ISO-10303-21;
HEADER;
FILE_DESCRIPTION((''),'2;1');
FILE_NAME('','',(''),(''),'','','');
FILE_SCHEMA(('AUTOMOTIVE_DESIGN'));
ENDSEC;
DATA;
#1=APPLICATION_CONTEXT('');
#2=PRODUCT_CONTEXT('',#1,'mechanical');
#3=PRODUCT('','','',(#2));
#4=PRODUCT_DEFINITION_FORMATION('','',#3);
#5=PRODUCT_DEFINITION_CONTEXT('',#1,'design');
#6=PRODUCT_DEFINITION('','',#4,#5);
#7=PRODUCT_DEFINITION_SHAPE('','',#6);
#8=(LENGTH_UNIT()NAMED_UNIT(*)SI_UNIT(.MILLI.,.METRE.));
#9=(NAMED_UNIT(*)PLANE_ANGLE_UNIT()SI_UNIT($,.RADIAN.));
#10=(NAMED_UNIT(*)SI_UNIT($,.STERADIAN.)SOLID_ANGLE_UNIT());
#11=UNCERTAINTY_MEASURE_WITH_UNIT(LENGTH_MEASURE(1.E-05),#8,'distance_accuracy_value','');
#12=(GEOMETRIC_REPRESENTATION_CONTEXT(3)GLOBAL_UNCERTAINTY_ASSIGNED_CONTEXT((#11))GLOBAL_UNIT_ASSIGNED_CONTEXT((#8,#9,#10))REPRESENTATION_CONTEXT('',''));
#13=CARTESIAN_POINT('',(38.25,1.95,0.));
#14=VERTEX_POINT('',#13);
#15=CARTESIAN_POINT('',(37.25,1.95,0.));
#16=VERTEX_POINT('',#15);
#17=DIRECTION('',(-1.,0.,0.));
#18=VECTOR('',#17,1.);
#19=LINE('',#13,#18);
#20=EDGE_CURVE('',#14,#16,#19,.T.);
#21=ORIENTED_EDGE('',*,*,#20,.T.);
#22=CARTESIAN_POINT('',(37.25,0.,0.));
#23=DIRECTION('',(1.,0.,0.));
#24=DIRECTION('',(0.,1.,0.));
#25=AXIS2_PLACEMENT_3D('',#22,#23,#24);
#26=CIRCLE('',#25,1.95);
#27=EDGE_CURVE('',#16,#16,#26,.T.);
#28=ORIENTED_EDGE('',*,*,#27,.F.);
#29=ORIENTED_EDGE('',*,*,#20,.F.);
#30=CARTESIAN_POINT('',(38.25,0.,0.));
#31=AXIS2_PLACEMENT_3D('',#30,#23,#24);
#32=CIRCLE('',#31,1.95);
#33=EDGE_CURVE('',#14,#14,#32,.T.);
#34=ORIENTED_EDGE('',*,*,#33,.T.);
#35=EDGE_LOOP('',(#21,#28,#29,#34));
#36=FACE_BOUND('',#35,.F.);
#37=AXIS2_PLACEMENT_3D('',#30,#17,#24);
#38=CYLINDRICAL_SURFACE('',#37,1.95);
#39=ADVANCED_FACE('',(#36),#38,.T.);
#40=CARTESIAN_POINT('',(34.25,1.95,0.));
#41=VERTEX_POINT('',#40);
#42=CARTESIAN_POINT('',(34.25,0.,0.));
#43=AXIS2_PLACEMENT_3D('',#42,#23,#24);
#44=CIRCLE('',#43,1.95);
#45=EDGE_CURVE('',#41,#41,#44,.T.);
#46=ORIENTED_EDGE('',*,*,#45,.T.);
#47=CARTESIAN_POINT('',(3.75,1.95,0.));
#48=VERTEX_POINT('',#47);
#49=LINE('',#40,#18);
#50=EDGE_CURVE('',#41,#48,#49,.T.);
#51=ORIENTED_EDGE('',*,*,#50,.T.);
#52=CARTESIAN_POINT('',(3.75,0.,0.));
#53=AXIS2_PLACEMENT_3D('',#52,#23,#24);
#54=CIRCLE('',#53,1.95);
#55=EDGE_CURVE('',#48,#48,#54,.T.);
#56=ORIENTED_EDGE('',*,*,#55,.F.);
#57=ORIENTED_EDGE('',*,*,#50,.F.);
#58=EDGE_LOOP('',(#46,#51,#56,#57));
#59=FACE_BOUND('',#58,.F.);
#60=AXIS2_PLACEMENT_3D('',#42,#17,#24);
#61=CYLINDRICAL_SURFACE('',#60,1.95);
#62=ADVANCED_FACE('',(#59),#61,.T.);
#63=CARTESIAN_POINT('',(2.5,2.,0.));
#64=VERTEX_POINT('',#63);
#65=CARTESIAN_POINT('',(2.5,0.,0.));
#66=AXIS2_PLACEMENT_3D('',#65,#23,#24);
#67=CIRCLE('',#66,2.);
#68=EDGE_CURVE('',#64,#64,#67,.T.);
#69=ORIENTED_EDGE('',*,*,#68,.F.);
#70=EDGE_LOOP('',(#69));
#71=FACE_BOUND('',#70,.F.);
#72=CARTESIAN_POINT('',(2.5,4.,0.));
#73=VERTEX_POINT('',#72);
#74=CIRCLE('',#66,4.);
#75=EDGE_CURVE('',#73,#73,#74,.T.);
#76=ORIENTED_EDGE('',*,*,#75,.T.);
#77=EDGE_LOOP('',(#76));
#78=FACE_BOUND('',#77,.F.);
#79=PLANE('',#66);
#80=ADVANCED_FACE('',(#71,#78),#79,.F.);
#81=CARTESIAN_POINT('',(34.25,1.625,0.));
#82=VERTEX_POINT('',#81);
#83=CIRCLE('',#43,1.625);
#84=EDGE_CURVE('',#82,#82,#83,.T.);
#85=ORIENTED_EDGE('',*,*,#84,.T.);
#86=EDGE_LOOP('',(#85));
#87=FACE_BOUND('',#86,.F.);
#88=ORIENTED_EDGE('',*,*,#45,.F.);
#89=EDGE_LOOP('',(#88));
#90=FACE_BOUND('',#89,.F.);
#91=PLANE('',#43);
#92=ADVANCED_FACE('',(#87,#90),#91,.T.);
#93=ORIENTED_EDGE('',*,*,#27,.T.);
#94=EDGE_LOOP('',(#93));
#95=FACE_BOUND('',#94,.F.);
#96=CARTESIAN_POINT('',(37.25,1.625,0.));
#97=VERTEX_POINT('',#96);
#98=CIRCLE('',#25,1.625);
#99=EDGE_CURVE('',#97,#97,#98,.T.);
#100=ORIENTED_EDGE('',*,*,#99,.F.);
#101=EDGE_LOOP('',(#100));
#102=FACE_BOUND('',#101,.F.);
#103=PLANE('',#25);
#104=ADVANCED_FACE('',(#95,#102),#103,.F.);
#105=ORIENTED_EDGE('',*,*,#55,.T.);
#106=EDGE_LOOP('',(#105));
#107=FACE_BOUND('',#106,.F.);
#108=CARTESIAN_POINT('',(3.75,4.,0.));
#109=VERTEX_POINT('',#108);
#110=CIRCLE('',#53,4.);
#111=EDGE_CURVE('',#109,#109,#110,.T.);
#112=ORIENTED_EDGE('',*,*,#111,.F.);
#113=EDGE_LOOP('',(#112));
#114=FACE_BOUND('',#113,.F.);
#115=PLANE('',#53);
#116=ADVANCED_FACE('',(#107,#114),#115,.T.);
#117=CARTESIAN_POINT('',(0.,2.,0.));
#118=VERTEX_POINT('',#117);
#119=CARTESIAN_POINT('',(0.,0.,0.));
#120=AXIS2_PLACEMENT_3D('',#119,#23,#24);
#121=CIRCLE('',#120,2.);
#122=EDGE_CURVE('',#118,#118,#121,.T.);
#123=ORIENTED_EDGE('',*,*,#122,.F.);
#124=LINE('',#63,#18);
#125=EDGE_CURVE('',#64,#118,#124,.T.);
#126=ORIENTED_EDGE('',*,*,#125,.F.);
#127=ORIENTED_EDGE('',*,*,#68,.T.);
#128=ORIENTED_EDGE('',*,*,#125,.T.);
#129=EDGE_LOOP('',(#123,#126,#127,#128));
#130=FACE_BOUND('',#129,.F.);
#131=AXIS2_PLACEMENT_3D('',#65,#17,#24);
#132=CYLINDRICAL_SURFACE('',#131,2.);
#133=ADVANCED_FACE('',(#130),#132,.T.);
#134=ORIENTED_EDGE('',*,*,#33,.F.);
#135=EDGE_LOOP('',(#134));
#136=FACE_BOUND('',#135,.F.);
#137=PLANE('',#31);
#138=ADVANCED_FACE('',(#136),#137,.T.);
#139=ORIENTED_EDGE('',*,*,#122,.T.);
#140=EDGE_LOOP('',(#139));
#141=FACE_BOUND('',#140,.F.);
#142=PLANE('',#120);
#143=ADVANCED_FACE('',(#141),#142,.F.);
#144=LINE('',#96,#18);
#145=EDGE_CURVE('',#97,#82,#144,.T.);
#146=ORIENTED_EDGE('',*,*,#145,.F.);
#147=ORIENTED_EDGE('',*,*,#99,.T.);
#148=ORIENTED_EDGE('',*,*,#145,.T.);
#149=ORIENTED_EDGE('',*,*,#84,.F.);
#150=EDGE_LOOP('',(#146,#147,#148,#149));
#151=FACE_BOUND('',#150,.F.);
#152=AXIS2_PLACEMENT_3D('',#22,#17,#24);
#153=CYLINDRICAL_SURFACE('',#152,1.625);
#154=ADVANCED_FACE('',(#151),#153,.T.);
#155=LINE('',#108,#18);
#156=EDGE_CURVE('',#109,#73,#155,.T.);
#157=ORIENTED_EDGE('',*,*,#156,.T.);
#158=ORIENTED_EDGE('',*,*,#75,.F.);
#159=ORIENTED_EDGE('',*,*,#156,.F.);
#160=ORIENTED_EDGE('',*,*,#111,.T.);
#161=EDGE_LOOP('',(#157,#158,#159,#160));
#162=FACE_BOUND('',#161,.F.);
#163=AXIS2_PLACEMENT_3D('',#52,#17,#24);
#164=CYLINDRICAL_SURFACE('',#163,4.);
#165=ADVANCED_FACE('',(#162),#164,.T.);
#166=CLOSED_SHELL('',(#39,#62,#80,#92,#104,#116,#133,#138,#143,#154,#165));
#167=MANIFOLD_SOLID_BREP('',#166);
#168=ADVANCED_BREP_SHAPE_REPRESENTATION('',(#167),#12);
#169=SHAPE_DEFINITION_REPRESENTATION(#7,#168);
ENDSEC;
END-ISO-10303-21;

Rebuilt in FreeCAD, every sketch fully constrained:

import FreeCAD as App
import Part
import Sketcher

doc = App.newDocument("Part")
body = doc.addObject("PartDesign::Body", "Body")

# Sketch on XY plane
sketch1 = doc.addObject("Sketcher::SketchObject", "Sketch")
body.addObject(sketch1)
sketch1.AttachmentSupport = (doc.XY_Plane, [""])
sketch1.MapMode = "FlatFace"
sketch1.addGeometry(Part.LineSegment(App.Vector(0, 2, 0), App.Vector(0, 0, 0)), False)
sketch1.addGeometry(Part.LineSegment(App.Vector(0, 0, 0), App.Vector(38.25, 0, 0)), False)
sketch1.addGeometry(Part.LineSegment(App.Vector(38.25, 0, 0), App.Vector(38.25, 1.95, 0)), False)
sketch1.addGeometry(Part.LineSegment(App.Vector(38.25, 1.95, 0), App.Vector(37.25, 1.95, 0)), False)
sketch1.addGeometry(Part.LineSegment(App.Vector(37.25, 1.95, 0), App.Vector(37.25, 1.62, 0)), False)
sketch1.addGeometry(Part.LineSegment(App.Vector(37.25, 1.62, 0), App.Vector(34.25, 1.62, 0)), False)
sketch1.addGeometry(Part.LineSegment(App.Vector(34.25, 1.62, 0), App.Vector(34.25, 1.95, 0)), False)
sketch1.addGeometry(Part.LineSegment(App.Vector(34.25, 1.95, 0), App.Vector(3.75, 1.95, 0)), False)
sketch1.addGeometry(Part.LineSegment(App.Vector(3.75, 1.95, 0), App.Vector(3.75, 4, 0)), False)
sketch1.addGeometry(Part.LineSegment(App.Vector(3.75, 4, 0), App.Vector(2.5, 4, 0)), False)
sketch1.addGeometry(Part.LineSegment(App.Vector(2.5, 4, 0), App.Vector(2.5, 2, 0)), False)
sketch1.addGeometry(Part.LineSegment(App.Vector(2.5, 2, 0), App.Vector(0, 2, 0)), False)
sketch1.addConstraint(Sketcher.Constraint("Coincident", 0, 2, 1, 1))
sketch1.addConstraint(Sketcher.Constraint("Coincident", 1, 2, 2, 1))
sketch1.addConstraint(Sketcher.Constraint("Coincident", 2, 2, 3, 1))
sketch1.addConstraint(Sketcher.Constraint("Coincident", 3, 2, 4, 1))
sketch1.addConstraint(Sketcher.Constraint("Coincident", 4, 2, 5, 1))
sketch1.addConstraint(Sketcher.Constraint("Coincident", 5, 2, 6, 1))
sketch1.addConstraint(Sketcher.Constraint("Coincident", 6, 2, 7, 1))
sketch1.addConstraint(Sketcher.Constraint("Coincident", 7, 2, 8, 1))
sketch1.addConstraint(Sketcher.Constraint("Coincident", 8, 2, 9, 1))
sketch1.addConstraint(Sketcher.Constraint("Coincident", 9, 2, 10, 1))
sketch1.addConstraint(Sketcher.Constraint("Coincident", 10, 2, 11, 1))
sketch1.addConstraint(Sketcher.Constraint("Coincident", 11, 2, 0, 1))
sketch1.addConstraint(Sketcher.Constraint("Vertical", 0))
sketch1.addConstraint(Sketcher.Constraint("Horizontal", 1))
sketch1.addConstraint(Sketcher.Constraint("Vertical", 2))
sketch1.addConstraint(Sketcher.Constraint("Horizontal", 3))
sketch1.addConstraint(Sketcher.Constraint("Vertical", 4))
sketch1.addConstraint(Sketcher.Constraint("Horizontal", 5))
sketch1.addConstraint(Sketcher.Constraint("Vertical", 6))
sketch1.addConstraint(Sketcher.Constraint("Horizontal", 7))
sketch1.addConstraint(Sketcher.Constraint("Vertical", 8))
sketch1.addConstraint(Sketcher.Constraint("Horizontal", 9))
sketch1.addConstraint(Sketcher.Constraint("Vertical", 10))
sketch1.addConstraint(Sketcher.Constraint("Horizontal", 11))
sketch1.addConstraint(Sketcher.Constraint("Coincident", 0, 2, -1, 1))
sketch1.addConstraint(Sketcher.Constraint("Horizontal", 3, 2, 6, 2))
sketch1.addConstraint(Sketcher.Constraint("Equal", 0, 10))
sketch1.addConstraint(Sketcher.Constraint("DistanceX", 11, 2, 11, 1, 2.5))
sketch1.addConstraint(Sketcher.Constraint("DistanceY", -1, 1, 8, 2, 4.0))
sketch1.addConstraint(Sketcher.Constraint("DistanceX", 5, 2, 2, 2, 4.0))
sketch1.addConstraint(Sketcher.Constraint("DistanceX", 1, 1, 1, 2, 38.25))
sketch1.addConstraint(Sketcher.Constraint("DistanceX", 3, 2, 3, 1, 1.0))
sketch1.addConstraint(Sketcher.Constraint("DistanceX", -1, 1, 7, 2, 3.75))
sketch1.addConstraint(Sketcher.Constraint("DistanceY", 2, 1, 2, 2, 1.95))
sketch1.addConstraint(Sketcher.Constraint("DistanceY", 4, 2, 4, 1, 0.325))
revolution = doc.addObject("PartDesign::Revolution", "Revolution")
body.addObject(revolution)
revolution.Profile = sketch1
revolution.ReferenceAxis = (sketch1, ["H_Axis"])
revolution.Angle = 360

doc.recompute()
